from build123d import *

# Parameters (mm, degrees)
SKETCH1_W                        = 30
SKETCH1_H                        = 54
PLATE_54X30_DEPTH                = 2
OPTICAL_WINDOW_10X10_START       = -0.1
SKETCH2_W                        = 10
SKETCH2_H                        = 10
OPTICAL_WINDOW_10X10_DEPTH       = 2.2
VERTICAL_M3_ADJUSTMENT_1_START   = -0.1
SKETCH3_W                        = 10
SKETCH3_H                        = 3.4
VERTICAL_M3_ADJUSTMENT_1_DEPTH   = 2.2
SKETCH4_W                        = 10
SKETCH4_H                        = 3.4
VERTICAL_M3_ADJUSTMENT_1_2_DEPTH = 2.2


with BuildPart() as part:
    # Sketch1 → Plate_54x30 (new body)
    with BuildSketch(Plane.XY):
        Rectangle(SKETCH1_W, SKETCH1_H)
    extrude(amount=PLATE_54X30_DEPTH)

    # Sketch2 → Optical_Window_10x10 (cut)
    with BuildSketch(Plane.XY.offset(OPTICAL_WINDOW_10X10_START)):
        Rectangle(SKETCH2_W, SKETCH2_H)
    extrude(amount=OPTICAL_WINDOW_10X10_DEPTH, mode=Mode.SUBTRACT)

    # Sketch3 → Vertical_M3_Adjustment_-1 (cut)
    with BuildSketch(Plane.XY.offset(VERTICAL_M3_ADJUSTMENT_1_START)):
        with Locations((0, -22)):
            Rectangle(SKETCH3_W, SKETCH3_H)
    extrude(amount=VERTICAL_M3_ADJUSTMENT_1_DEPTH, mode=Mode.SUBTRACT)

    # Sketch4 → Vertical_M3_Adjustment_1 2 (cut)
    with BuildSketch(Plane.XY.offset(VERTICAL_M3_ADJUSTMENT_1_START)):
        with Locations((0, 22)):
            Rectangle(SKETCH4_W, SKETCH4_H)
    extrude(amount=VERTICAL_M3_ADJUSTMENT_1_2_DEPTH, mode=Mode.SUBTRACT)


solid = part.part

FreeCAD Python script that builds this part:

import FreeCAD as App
import Part
import Sketcher
Q = App.Units.Quantity


def add_polygon(sketch, points):
    """Adds a closed chain of lines whose ends are joined by coincident constraints."""
    first, n = sketch.GeometryCount, len(points)
    for a, b in zip(points, points[1:] + points[:1]):
        sketch.addGeometry(Part.LineSegment(App.Vector(*a, 0), App.Vector(*b, 0)), False)
    for i in range(n):
        sketch.addConstraint(Sketcher.Constraint("Coincident", first + i, 2, first + (i + 1) % n, 1))

doc = App.newDocument("Part")
body = doc.addObject("PartDesign::Body", "Body")

# Sketch on XY plane
sketch1 = body.newObject("Sketcher::SketchObject", "Sketch")
sketch1.AttachmentSupport = (doc.getObject("XY_Plane"), [""])
sketch1.MapMode = "FlatFace"
add_polygon(sketch1, [(-15, 27), (-15, -27), (15, -27), (15, 27)])  # lines 0-3
sketch1.addConstraint(Sketcher.Constraint("Vertical", 0))
sketch1.addConstraint(Sketcher.Constraint("Horizontal", 1))
sketch1.addConstraint(Sketcher.Constraint("Vertical", 2))
sketch1.addConstraint(Sketcher.Constraint("Horizontal", 3))
sketch1.addConstraint(Sketcher.Constraint("Symmetric", 0, 2, 2, 2, -1, 1))
sketch1.addConstraint(Sketcher.Constraint("DistanceX", 1, 1, 1, 2, Q("30 mm")))
sketch1.addConstraint(Sketcher.Constraint("DistanceY", 0, 2, 0, 1, Q("54 mm")))
pad1 = body.newObject("PartDesign::Pad", "Pad")
pad1.Profile = sketch1
pad1.Length = 2

# Sketch on XY plane
sketch2 = body.newObject("Sketcher::SketchObject", "Sketch001")
sketch2.AttachmentSupport = (doc.getObject("XY_Plane"), [""])
sketch2.MapMode = "FlatFace"
sketch2.AttachmentOffset = App.Placement(App.Vector(0, 0, -0.1), App.Rotation())
add_polygon(sketch2, [(-5, 5), (-5, -5), (5, -5), (5, 5)])  # lines 0-3
sketch2.addConstraint(Sketcher.Constraint("Vertical", 0))
sketch2.addConstraint(Sketcher.Constraint("Horizontal", 1))
sketch2.addConstraint(Sketcher.Constraint("Vertical", 2))
sketch2.addConstraint(Sketcher.Constraint("Horizontal", 3))
sketch2.addConstraint(Sketcher.Constraint("Symmetric", 0, 2, 2, 2, -1, 1))
sketch2.addConstraint(Sketcher.Constraint("Equal", 3, 0))
sketch2.addConstraint(Sketcher.Constraint("DistanceX", 1, 1, 1, 2, Q("10 mm")))
pocket1 = body.newObject("PartDesign::Pocket", "Pocket")
pocket1.Profile = sketch2
pocket1.Length = 2.2
pocket1.Reversed = True

# Sketch on XY plane
sketch3 = body.newObject("Sketcher::SketchObject", "Sketch002")
sketch3.AttachmentSupport = (doc.getObject("XY_Plane"), [""])
sketch3.MapMode = "FlatFace"
sketch3.AttachmentOffset = App.Placement(App.Vector(0, 0, -0.1), App.Rotation())
add_polygon(sketch3, [(-5, -20.3), (-5, -23.7), (5, -23.7), (5, -20.3)])  # lines 0-3
sketch3.addConstraint(Sketcher.Constraint("Vertical", 0))
sketch3.addConstraint(Sketcher.Constraint("Horizontal", 1))
sketch3.addConstraint(Sketcher.Constraint("Vertical", 2))
sketch3.addConstraint(Sketcher.Constraint("Horizontal", 3))
sketch3.addConstraint(Sketcher.Constraint("DistanceX", 1, 1, 1, 2, Q("10 mm")))
sketch3.addConstraint(Sketcher.Constraint("DistanceY", 0, 2, 0, 1, Q("3.4 mm")))
sketch3.addConstraint(Sketcher.Constraint("DistanceX", 0, 2, -1, 1, Q("5 mm")))
sketch3.addConstraint(Sketcher.Constraint("DistanceY", 0, 2, -1, 1, Q("23.7 mm")))
pocket2 = body.newObject("PartDesign::Pocket", "Pocket001")
pocket2.Profile = sketch3
pocket2.Length = 2.2
pocket2.Reversed = True

# Sketch on XY plane
sketch4 = body.newObject("Sketcher::SketchObject", "Sketch003")
sketch4.AttachmentSupport = (doc.getObject("XY_Plane"), [""])
sketch4.MapMode = "FlatFace"
sketch4.AttachmentOffset = App.Placement(App.Vector(0, 0, -0.1), App.Rotation())
add_polygon(sketch4, [(-5, 23.7), (-5, 20.3), (5, 20.3), (5, 23.7)])  # lines 0-3
sketch4.addConstraint(Sketcher.Constraint("Vertical", 0))
sketch4.addConstraint(Sketcher.Constraint("Horizontal", 1))
sketch4.addConstraint(Sketcher.Constraint("Vertical", 2))
sketch4.addConstraint(Sketcher.Constraint("Horizontal", 3))
sketch4.addConstraint(Sketcher.Constraint("DistanceX", 1, 1, 1, 2, Q("10 mm")))
sketch4.addConstraint(Sketcher.Constraint("DistanceY", 0, 2, 0, 1, Q("3.4 mm")))
sketch4.addConstraint(Sketcher.Constraint("DistanceX", 0, 2, -1, 1, Q("5 mm")))
sketch4.addConstraint(Sketcher.Constraint("DistanceY", -1, 1, 0, 2, Q("20.3 mm")))
pocket3 = body.newObject("PartDesign::Pocket", "Pocket002")
pocket3.Profile = sketch4
pocket3.Length = 2.2
pocket3.Reversed = True

doc.recompute()
